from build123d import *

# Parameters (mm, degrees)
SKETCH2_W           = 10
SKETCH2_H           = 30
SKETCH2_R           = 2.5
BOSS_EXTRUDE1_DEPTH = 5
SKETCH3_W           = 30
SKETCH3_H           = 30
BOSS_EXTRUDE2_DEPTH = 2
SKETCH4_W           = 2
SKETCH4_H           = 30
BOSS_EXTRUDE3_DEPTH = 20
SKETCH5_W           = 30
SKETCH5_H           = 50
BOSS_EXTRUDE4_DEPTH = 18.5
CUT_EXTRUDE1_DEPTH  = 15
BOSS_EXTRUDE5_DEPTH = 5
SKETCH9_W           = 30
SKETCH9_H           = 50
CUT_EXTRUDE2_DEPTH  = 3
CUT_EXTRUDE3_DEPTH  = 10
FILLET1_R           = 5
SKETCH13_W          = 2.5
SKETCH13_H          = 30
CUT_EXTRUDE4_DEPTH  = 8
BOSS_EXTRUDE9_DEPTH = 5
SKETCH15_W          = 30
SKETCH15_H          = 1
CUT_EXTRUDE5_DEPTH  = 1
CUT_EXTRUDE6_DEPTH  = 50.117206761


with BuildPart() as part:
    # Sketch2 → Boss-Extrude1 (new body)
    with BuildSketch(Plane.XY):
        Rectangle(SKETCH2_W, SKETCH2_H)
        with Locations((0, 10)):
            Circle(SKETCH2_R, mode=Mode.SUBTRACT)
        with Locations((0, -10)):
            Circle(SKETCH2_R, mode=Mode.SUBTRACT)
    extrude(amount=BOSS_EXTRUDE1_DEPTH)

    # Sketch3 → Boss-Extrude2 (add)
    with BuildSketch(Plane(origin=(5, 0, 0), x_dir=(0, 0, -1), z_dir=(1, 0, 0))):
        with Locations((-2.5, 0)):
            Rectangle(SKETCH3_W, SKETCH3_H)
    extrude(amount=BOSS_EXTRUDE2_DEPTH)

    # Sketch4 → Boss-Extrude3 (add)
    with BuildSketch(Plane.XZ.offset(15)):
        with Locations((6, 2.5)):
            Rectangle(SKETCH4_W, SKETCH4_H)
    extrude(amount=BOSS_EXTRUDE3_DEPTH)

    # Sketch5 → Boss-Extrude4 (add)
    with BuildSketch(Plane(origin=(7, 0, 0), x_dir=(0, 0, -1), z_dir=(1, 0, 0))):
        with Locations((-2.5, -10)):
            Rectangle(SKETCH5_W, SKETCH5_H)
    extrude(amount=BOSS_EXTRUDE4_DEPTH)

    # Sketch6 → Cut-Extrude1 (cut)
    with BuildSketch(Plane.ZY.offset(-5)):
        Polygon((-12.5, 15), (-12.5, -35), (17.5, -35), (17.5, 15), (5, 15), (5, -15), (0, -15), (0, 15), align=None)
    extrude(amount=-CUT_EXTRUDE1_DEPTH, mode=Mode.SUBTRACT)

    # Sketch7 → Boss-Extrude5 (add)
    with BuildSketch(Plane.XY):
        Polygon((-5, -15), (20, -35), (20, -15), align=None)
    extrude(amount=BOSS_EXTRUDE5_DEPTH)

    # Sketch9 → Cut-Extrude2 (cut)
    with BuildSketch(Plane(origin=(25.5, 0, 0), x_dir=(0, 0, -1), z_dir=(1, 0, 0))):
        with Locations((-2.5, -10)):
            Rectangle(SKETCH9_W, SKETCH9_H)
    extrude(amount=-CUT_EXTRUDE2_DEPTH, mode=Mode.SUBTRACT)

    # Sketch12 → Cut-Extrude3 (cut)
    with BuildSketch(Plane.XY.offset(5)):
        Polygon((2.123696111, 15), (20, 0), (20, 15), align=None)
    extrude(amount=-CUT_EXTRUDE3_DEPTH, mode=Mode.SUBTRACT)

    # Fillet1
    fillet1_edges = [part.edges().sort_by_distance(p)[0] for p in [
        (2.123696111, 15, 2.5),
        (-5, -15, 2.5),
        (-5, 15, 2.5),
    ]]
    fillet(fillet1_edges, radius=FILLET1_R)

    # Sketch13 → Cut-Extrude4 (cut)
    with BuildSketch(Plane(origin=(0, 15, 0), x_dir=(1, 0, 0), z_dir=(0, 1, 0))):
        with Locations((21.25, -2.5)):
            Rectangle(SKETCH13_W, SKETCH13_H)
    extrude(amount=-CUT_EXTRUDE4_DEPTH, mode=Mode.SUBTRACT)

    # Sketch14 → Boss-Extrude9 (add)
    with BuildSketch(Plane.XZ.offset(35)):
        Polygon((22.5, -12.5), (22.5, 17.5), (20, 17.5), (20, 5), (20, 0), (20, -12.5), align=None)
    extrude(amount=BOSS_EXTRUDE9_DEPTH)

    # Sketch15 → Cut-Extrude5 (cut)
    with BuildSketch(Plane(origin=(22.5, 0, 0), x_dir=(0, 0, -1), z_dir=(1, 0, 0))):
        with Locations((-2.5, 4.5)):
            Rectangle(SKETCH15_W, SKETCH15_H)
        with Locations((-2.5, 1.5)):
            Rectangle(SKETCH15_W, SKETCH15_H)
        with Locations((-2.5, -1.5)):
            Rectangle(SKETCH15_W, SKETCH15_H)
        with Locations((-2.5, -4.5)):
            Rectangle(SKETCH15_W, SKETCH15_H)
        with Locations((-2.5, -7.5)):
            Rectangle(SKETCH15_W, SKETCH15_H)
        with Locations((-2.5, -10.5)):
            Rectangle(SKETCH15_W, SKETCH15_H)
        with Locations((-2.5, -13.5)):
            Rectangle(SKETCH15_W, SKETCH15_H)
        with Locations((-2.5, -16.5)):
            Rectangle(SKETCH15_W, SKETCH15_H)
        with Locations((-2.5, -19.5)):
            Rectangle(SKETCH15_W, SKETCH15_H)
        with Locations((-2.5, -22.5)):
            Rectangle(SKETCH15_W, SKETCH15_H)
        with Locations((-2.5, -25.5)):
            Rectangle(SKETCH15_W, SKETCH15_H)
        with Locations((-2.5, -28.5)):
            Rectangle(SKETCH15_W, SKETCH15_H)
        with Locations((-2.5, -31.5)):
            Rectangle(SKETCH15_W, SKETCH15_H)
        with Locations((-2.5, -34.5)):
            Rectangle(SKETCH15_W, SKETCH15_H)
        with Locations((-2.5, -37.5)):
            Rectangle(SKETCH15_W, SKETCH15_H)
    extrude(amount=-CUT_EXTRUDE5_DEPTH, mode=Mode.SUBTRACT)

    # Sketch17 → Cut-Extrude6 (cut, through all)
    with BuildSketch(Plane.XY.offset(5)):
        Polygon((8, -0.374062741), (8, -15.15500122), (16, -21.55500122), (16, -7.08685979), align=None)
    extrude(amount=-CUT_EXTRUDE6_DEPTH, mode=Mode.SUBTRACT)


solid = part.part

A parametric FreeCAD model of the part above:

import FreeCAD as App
import Part
import Sketcher
from FreeCAD import Vector
Q = App.Units.Quantity


def edges_at(feature, points):
    """Names of the edges that pass closest to the given points."""
    edges = feature.Shape.Edges
    near = lambda p: min(range(len(edges)), key=lambda i: edges[i].distToShape(Part.Vertex(*p))[0])
    return sorted({f"Edge{near(p) + 1}" for p in points})

doc = App.newDocument("Part")
body = doc.addObject("PartDesign::Body", "Body")

# Sketch on XY plane
sketch1 = body.newObject("Sketcher::SketchObject", "Sketch")
sketch1.AttachmentSupport = (doc.getObject("XY_Plane"), [""])
sketch1.MapMode = "FlatFace"
sketch1.addGeometry(Part.LineSegment(Vector(-5, 15, 0), Vector(-5, -15, 0)), False)
sketch1.addGeometry(Part.LineSegment(Vector(-5, -15, 0), Vector(5, -15, 0)), False)
sketch1.addGeometry(Part.LineSegment(Vector(5, -15, 0), Vector(5, 15, 0)), False)
sketch1.addGeometry(Part.LineSegment(Vector(5, 15, 0), Vector(-5, 15, 0)), False)
sketch1.addGeometry(Part.Circle(Vector(0, -10, 0), Vector(0, 0, 1), 2.5), False)
sketch1.addGeometry(Part.Circle(Vector(0, 10, 0), Vector(0, 0, 1), 2.5), False)
sketch1.addConstraint(Sketcher.Constraint("Coincident", 0, 2, 1, 1))
sketch1.addConstraint(Sketcher.Constraint("Coincident", 1, 2, 2, 1))
sketch1.addConstraint(Sketcher.Constraint("Coincident", 2, 2, 3, 1))
sketch1.addConstraint(Sketcher.Constraint("Coincident", 3, 2, 0, 1))
sketch1.addConstraint(Sketcher.Constraint("Vertical", 0))
sketch1.addConstraint(Sketcher.Constraint("Horizontal", 1))
sketch1.addConstraint(Sketcher.Constraint("Vertical", 2))
sketch1.addConstraint(Sketcher.Constraint("Horizontal", 3))
sketch1.addConstraint(Sketcher.Constraint("Equal", 4, 5))
sketch1.addConstraint(Sketcher.Constraint("Symmetric", 4, 3, 5, 3, -1, 1))
sketch1.addConstraint(Sketcher.Constraint("Symmetric", 0, 2, 2, 2, -1, 1))
sketch1.addConstraint(Sketcher.Constraint("PointOnObject", 4, 3, -2))
sketch1.addConstraint(Sketcher.Constraint("Diameter", 4, Q("5 mm")))
sketch1.addConstraint(Sketcher.Constraint("DistanceX", 1, 1, 1, 2, Q("10 mm")))
sketch1.addConstraint(Sketcher.Constraint("DistanceY", 0, 2, 0, 1, Q("30 mm")))
sketch1.addConstraint(Sketcher.Constraint("DistanceY", 4, 3, -1, 1, Q("10 mm")))
pad1 = body.newObject("PartDesign::Pad", "Pad")
pad1.Profile = sketch1
pad1.Length = 5

# Sketch on YZ plane
sketch2 = body.newObject("Sketcher::SketchObject", "Sketch001")
sketch2.AttachmentSupport = (doc.getObject("YZ_Plane"), [""])
sketch2.MapMode = "FlatFace"
sketch2.AttachmentOffset = App.Placement(Vector(0, 0, 5), App.Rotation())
sketch2.addGeometry(Part.LineSegment(Vector(15, 18, 0), Vector(-15, 18, 0)), False)
sketch2.addGeometry(Part.LineSegment(Vector(-15, 18, 0), Vector(-15, -12, 0)), False)
sketch2.addGeometry(Part.LineSegment(Vector(-15, -12, 0), Vector(15, -12, 0)), False)
sketch2.addGeometry(Part.LineSegment(Vector(15, -12, 0), Vector(15, 18, 0)), False)
sketch2.addConstraint(Sketcher.Constraint("Coincident", 0, 2, 1, 1))
sketch2.addConstraint(Sketcher.Constraint("Coincident", 1, 2, 2, 1))
sketch2.addConstraint(Sketcher.Constraint("Coincident", 2, 2, 3, 1))
sketch2.addConstraint(Sketcher.Constraint("Coincident", 3, 2, 0, 1))
sketch2.addConstraint(Sketcher.Constraint("Horizontal", 0))
sketch2.addConstraint(Sketcher.Constraint("Vertical", 1))
sketch2.addConstraint(Sketcher.Constraint("Horizontal", 2))
sketch2.addConstraint(Sketcher.Constraint("Vertical", 3))
sketch2.addConstraint(Sketcher.Constraint("Equal", 2, 1))
sketch2.addConstraint(Sketcher.Constraint("DistanceX", 0, 2, 0, 1, Q("30 mm")))
sketch2.addConstraint(Sketcher.Constraint("DistanceX", 0, 2, -1, 1, Q("15 mm")))
sketch2.addConstraint(Sketcher.Constraint("DistanceY", -1, 1, 0, 2, Q("17.5 mm")))
pad2 = body.newObject("PartDesign::Pad", "Pad001")
pad2.Profile = sketch2
pad2.Length = 2

# Sketch on XZ plane
sketch3 = body.newObject("Sketcher::SketchObject", "Sketch002")
sketch3.AttachmentSupport = (doc.getObject("XZ_Plane"), [""])
sketch3.MapMode = "FlatFace"
sketch3.AttachmentOffset = App.Placement(Vector(0, 0, 15), App.Rotation())
sketch3.addGeometry(Part.LineSegment(Vector(5, 17.5, 0), Vector(5, -12.5, 0)), False)
sketch3.addGeometry(Part.LineSegment(Vector(5, -12.5, 0), Vector(7, -12.5, 0)), False)
sketch3.addGeometry(Part.LineSegment(Vector(7, -12.5, 0), Vector(7, 17.5, 0)), False)
sketch3.addGeometry(Part.LineSegment(Vector(7, 17.5, 0), Vector(5, 17.5, 0)), False)
sketch3.addConstraint(Sketcher.Constraint("Coincident", 0, 2, 1, 1))
sketch3.addConstraint(Sketcher.Constraint("Coincident", 1, 2, 2, 1))
sketch3.addConstraint(Sketcher.Constraint("Coincident", 2, 2, 3, 1))
sketch3.addConstraint(Sketcher.Constraint("Coincident", 3, 2, 0, 1))
sketch3.addConstraint(Sketcher.Constraint("Vertical", 0))
sketch3.addConstraint(Sketcher.Constraint("Horizontal", 1))
sketch3.addConstraint(Sketcher.Constraint("Vertical", 2))
sketch3.addConstraint(Sketcher.Constraint("Horizontal", 3))
sketch3.addConstraint(Sketcher.Constraint("DistanceX", 1, 1, 1, 2, Q("2 mm")))
sketch3.addConstraint(Sketcher.Constraint("DistanceY", 0, 2, 0, 1, Q("30 mm")))
sketch3.addConstraint(Sketcher.Constraint("DistanceX", -1, 1, 0, 2, Q("5 mm")))
sketch3.addConstraint(Sketcher.Constraint("DistanceY", 0, 2, -1, 1, Q("12.5 mm")))
pad3 = body.newObject("PartDesign::Pad", "Pad002")
pad3.Profile = sketch3
pad3.Length = 20

# Sketch on YZ plane
sketch4 = body.newObject("Sketcher::SketchObject", "Sketch003")
sketch4.AttachmentSupport = (doc.getObject("YZ_Plane"), [""])
sketch4.MapMode = "FlatFace"
sketch4.AttachmentOffset = App.Placement(Vector(0, 0, 7), App.Rotation())
sketch4.addGeometry(Part.LineSegment(Vector(15, 18, 0), Vector(-35, 18, 0)), False)
sketch4.addGeometry(Part.LineSegment(Vector(-35, 18, 0), Vector(-35, -12, 0)), False)
sketch4.addGeometry(Part.LineSegment(Vector(-35, -12, 0), Vector(15, -12, 0)), False)
sketch4.addGeometry(Part.LineSegment(Vector(15, -12, 0), Vector(15, 18, 0)), False)
sketch4.addConstraint(Sketcher.Constraint("Coincident", 0, 2, 1, 1))
sketch4.addConstraint(Sketcher.Constraint("Coincident", 1, 2, 2, 1))
sketch4.addConstraint(Sketcher.Constraint("Coincident", 2, 2, 3, 1))
sketch4.addConstraint(Sketcher.Constraint("Coincident", 3, 2, 0, 1))
sketch4.addConstraint(Sketcher.Constraint("Horizontal", 0))
sketch4.addConstraint(Sketcher.Constraint("Vertical", 1))
sketch4.addConstraint(Sketcher.Constraint("Horizontal", 2))
sketch4.addConstraint(Sketcher.Constraint("Vertical", 3))
sketch4.addConstraint(Sketcher.Constraint("DistanceX", 0, 2, 0, 1, Q("50 mm")))
sketch4.addConstraint(Sketcher.Constraint("DistanceY", 1, 2, 1, 1, Q("30 mm")))
sketch4.addConstraint(Sketcher.Constraint("DistanceX", 0, 2, -1, 1, Q("35 mm")))
sketch4.addConstraint(Sketcher.Constraint("DistanceY", -1, 1, 0, 2, Q("17.5 mm")))
pad4 = body.newObject("PartDesign::Pad", "Pad003")
pad4.Profile = sketch4
pad4.Length = 18.5

# Sketch on YZ plane
sketch5 = body.newObject("Sketcher::SketchObject", "Sketch004")
sketch5.AttachmentSupport = (doc.getObject("YZ_Plane"), [""])
sketch5.MapMode = "FlatFace"
sketch5.AttachmentOffset = App.Placement(Vector(0, 0, 5), App.Rotation())
sketch5.addGeometry(Part.LineSegment(Vector(15, -12, 0), Vector(-35, -12, 0)), False)
sketch5.addGeometry(Part.LineSegment(Vector(-35, -12, 0), Vector(-35, 18, 0)), False)
sketch5.addGeometry(Part.LineSegment(Vector(-35, 18, 0), Vector(15, 18, 0)), False)
sketch5.addGeometry(Part.LineSegment(Vector(15, 18, 0), Vector(15, 5, 0)), False)
sketch5.addGeometry(Part.LineSegment(Vector(15, 5, 0), Vector(-15, 5, 0)), False)
sketch5.addGeometry(Part.LineSegment(Vector(-15, 5, 0), Vector(-15, 0, 0)), False)
sketch5.addGeometry(Part.LineSegment(Vector(-15, 0, 0), Vector(15, 0, 0)), False)
sketch5.addGeometry(Part.LineSegment(Vector(15, 0, 0), Vector(15, -12, 0)), False)
sketch5.addConstraint(Sketcher.Constraint("Coincident", 0, 2, 1, 1))
sketch5.addConstraint(Sketcher.Constraint("Coincident", 1, 2, 2, 1))
sketch5.addConstraint(Sketcher.Constraint("Coincident", 2, 2, 3, 1))
sketch5.addConstraint(Sketcher.Constraint("Coincident", 3, 2, 4, 1))
sketch5.addConstraint(Sketcher.Constraint("Coincident", 4, 2, 5, 1))
sketch5.addConstraint(Sketcher.Constraint("Coincident", 5, 2, 6, 1))
sketch5.addConstraint(Sketcher.Constraint("Coincident", 6, 2, 7, 1))
sketch5.addConstraint(Sketcher.Constraint("Coincident", 7, 2, 0, 1))
sketch5.addConstraint(Sketcher.Constraint("Horizontal", 0))
sketch5.addConstraint(Sketcher.Constraint("Vertical", 1))
sketch5.addConstraint(Sketcher.Constraint("Horizontal", 2))
sketch5.addConstraint(Sketcher.Constraint("Vertical", 3))
sketch5.addConstraint(Sketcher.Constraint("Horizontal", 4))
sketch5.addConstraint(Sketcher.Constraint("Vertical", 5))
sketch5.addConstraint(Sketcher.Constraint("Horizontal", 6))
sketch5.addConstraint(Sketcher.Constraint("Vertical", 7))
sketch5.addConstraint(Sketcher.Constraint("Symmetric", 5, 2, 6, 2, -1, 1))
sketch5.addConstraint(Sketcher.Constraint("Vertical", 3, 2, 6, 2))
sketch5.addConstraint(Sketcher.Constraint("Equal", 6, 1))
sketch5.addConstraint(Sketcher.Constraint("Equal", 3, 7))
sketch5.addConstraint(Sketcher.Constraint("DistanceX", 0, 2, 0, 1, Q("50 mm")))
sketch5.addConstraint(Sketcher.Constraint("DistanceX", 4, 2, 4, 1, Q("30 mm")))
sketch5.addConstraint(Sketcher.Constraint("DistanceY", 5, 2, 5, 1, Q("5 mm")))
pocket1 = body.newObject("PartDesign::Pocket", "Pocket")
pocket1.Profile = sketch5
pocket1.Length = 15
pocket1.Reversed = True

# Sketch on XY plane
sketch6 = body.newObject("Sketcher::SketchObject", "Sketch005")
sketch6.AttachmentSupport = (doc.getObject("XY_Plane"), [""])
sketch6.MapMode = "FlatFace"
sketch6.addGeometry(Part.LineSegment(Vector(-5, -15, 0), Vector(20, -35, 0)), False)
sketch6.addGeometry(Part.LineSegment(Vector(20, -35, 0), Vector(20, -15, 0)), False)
sketch6.addGeometry(Part.LineSegment(Vector(20, -15, 0), Vector(-5, -15, 0)), False)
sketch6.addConstraint(Sketcher.Constraint("Coincident", 0, 2, 1, 1))
sketch6.addConstraint(Sketcher.Constraint("Coincident", 1, 2, 2, 1))
sketch6.addConstraint(Sketcher.Constraint("Coincident", 2, 2, 0, 1))
sketch6.addConstraint(Sketcher.Constraint("Vertical", 1))
sketch6.addConstraint(Sketcher.Constraint("Horizontal", 2))
sketch6.addConstraint(Sketcher.Constraint("DistanceX", 2, 2, 2, 1, Q("25 mm")))
sketch6.addConstraint(Sketcher.Constraint("DistanceY", 1, 1, 1, 2, Q("20 mm")))
sketch6.addConstraint(Sketcher.Constraint("DistanceX", -1, 1, 0, 2, Q("20 mm")))
sketch6.addConstraint(Sketcher.Constraint("DistanceY", 0, 2, -1, 1, Q("35 mm")))
pad5 = body.newObject("PartDesign::Pad", "Pad004")
pad5.Profile = sketch6
pad5.Length = 5

# Sketch on YZ plane
sketch7 = body.newObject("Sketcher::SketchObject", "Sketch006")
sketch7.AttachmentSupport = (doc.getObject("YZ_Plane"), [""])
sketch7.MapMode = "FlatFace"
sketch7.AttachmentOffset = App.Placement(Vector(0, 0, 25.5), App.Rotation())
sketch7.addGeometry(Part.LineSegment(Vector(15, 18, 0), Vector(-35, 18, 0)), False)
sketch7.addGeometry(Part.LineSegment(Vector(-35, 18, 0), Vector(-35, -12, 0)), False)
sketch7.addGeometry(Part.LineSegment(Vector(-35, -12, 0), Vector(15, -12, 0)), False)
sketch7.addGeometry(Part.LineSegment(Vector(15, -12, 0), Vector(15, 18, 0)), False)
sketch7.addConstraint(Sketcher.Constraint("Coincident", 0, 2, 1, 1))
sketch7.addConstraint(Sketcher.Constraint("Coincident", 1, 2, 2, 1))
sketch7.addConstraint(Sketcher.Constraint("Coincident", 2, 2, 3, 1))
sketch7.addConstraint(Sketcher.Constraint("Coincident", 3, 2, 0, 1))
sketch7.addConstraint(Sketcher.Constraint("Horizontal", 0))
sketch7.addConstraint(Sketcher.Constraint("Vertical", 1))
sketch7.addConstraint(Sketcher.Constraint("Horizontal", 2))
sketch7.addConstraint(Sketcher.Constraint("Vertical", 3))
sketch7.addConstraint(Sketcher.Constraint("DistanceX", 0, 2, 0, 1, Q("50 mm")))
sketch7.addConstraint(Sketcher.Constraint("DistanceY", 1, 2, 1, 1, Q("30 mm")))
sketch7.addConstraint(Sketcher.Constraint("DistanceX", 0, 2, -1, 1, Q("35 mm")))
sketch7.addConstraint(Sketcher.Constraint("DistanceY", -1, 1, 0, 2, Q("17.5 mm")))
pocket2 = body.newObject("PartDesign::Pocket", "Pocket001")
pocket2.Profile = sketch7
pocket2.Length = 3

# Sketch on XY plane
sketch8 = body.newObject("Sketcher::SketchObject", "Sketch007")
sketch8.AttachmentSupport = (doc.getObject("XY_Plane"), [""])
sketch8.MapMode = "FlatFace"
sketch8.AttachmentOffset = App.Placement(Vector(0, 0, 5), App.Rotation())
sketch8.addGeometry(Part.LineSegment(Vector(2, 15, 0), Vector(20, 0, 0)), False)
sketch8.addGeometry(Part.LineSegment(Vector(20, 0, 0), Vector(20, 15, 0)), False)
sketch8.addGeometry(Part.LineSegment(Vector(20, 15, 0), Vector(2, 15, 0)), False)
sketch8.addConstraint(Sketcher.Constraint("Coincident", 0, 2, 1, 1))
sketch8.addConstraint(Sketcher.Constraint("Coincident", 1, 2, 2, 1))
sketch8.addConstraint(Sketcher.Constraint("Coincident", 2, 2, 0, 1))
sketch8.addConstraint(Sketcher.Constraint("Vertical", 1))
sketch8.addConstraint(Sketcher.Constraint("Horizontal", 2))
sketch8.addConstraint(Sketcher.Constraint("PointOnObject", 0, 2, -1))
sketch8.addConstraint(Sketcher.Constraint("DistanceY", 1, 1, 1, 2, Q("15 mm")))
sketch8.addConstraint(Sketcher.Constraint("Angle", 0, Q("-40 deg")))
sketch8.addConstraint(Sketcher.Constraint("DistanceX", -1, 1, 0, 2, Q("20 mm")))
pocket3 = body.newObject("PartDesign::Pocket", "Pocket002")
pocket3.Profile = sketch8
pocket3.Length = 10
doc.recompute()

fillet = body.newObject("PartDesign::Fillet", "Fillet")
fillet.Base = (pocket3, edges_at(pocket3, [(2.124, 15, 2.5), (-5, -15, 2.5), (-5, 15, 2.5)]))
fillet.Radius = 5

# Sketch on XZ plane
sketch9 = body.newObject("Sketcher::SketchObject", "Sketch008")
sketch9.AttachmentSupport = (doc.getObject("XZ_Plane"), [""])
sketch9.MapMode = "FlatFace"
sketch9.AttachmentOffset = App.Placement(Vector(0, 0, -15), App.Rotation())
sketch9.addGeometry(Part.LineSegment(Vector(20, -12.5, 0), Vector(20, 17.5, 0)), False)
sketch9.addGeometry(Part.LineSegment(Vector(20, 17.5, 0), Vector(22.5, 17.5, 0)), False)
sketch9.addGeometry(Part.LineSegment(Vector(22.5, 17.5, 0), Vector(22.5, -12.5, 0)), False)
sketch9.addGeometry(Part.LineSegment(Vector(22.5, -12.5, 0), Vector(20, -12.5, 0)), False)
sketch9.addConstraint(Sketcher.Constraint("Coincident", 0, 2, 1, 1))
sketch9.addConstraint(Sketcher.Constraint("Coincident", 1, 2, 2, 1))
sketch9.addConstraint(Sketcher.Constraint("Coincident", 2, 2, 3, 1))
sketch9.addConstraint(Sketcher.Constraint("Coincident", 3, 2, 0, 1))
sketch9.addConstraint(Sketcher.Constraint("Vertical", 0))
sketch9.addConstraint(Sketcher.Constraint("Horizontal", 1))
sketch9.addConstraint(Sketcher.Constraint("Vertical", 2))
sketch9.addConstraint(Sketcher.Constraint("Horizontal", 3))
sketch9.addConstraint(Sketcher.Constraint("DistanceY", 0, 1, 0, 2, Q("30 mm")))
sketch9.addConstraint(Sketcher.Constraint("DistanceX", 1, 1, 1, 2, Q("2.5 mm")))
sketch9.addConstraint(Sketcher.Constraint("DistanceX", -1, 1, 0, 2, Q("20 mm")))
sketch9.addConstraint(Sketcher.Constraint("DistanceY", -1, 1, 0, 2, Q("17.5 mm")))
pocket4 = body.newObject("PartDesign::Pocket", "Pocket003")
pocket4.Profile = sketch9
pocket4.Length = 8
pocket4.Reversed = True

# Sketch on XZ plane
sketch10 = body.newObject("Sketcher::SketchObject", "Sketch009")
sketch10.AttachmentSupport = (doc.getObject("XZ_Plane"), [""])
sketch10.MapMode = "FlatFace"
sketch10.AttachmentOffset = App.Placement(Vector(0, 0, 35), App.Rotation())
sketch10.addGeometry(Part.LineSegment(Vector(22.5, -12.5, 0), Vector(22.5, 17.5, 0)), False)
sketch10.addGeometry(Part.LineSegment(Vector(22.5, 17.5, 0), Vector(20, 17.5, 0)), False)
sketch10.addGeometry(Part.LineSegment(Vector(20, 17.5, 0), Vector(20, -12.5, 0)), False)
sketch10.addGeometry(Part.LineSegment(Vector(20, -12.5, 0), Vector(22.5, -12.5, 0)), False)
sketch10.addConstraint(Sketcher.Constraint("Coincident", 0, 2, 1, 1))
sketch10.addConstraint(Sketcher.Constraint("Coincident", 1, 2, 2, 1))
sketch10.addConstraint(Sketcher.Constraint("Coincident", 2, 2, 3, 1))
sketch10.addConstraint(Sketcher.Constraint("Coincident", 3, 2, 0, 1))
sketch10.addConstraint(Sketcher.Constraint("Vertical", 0))
sketch10.addConstraint(Sketcher.Constraint("Horizontal", 1))
sketch10.addConstraint(Sketcher.Constraint("Vertical", 2))
sketch10.addConstraint(Sketcher.Constraint("Horizontal", 3))
sketch10.addConstraint(Sketcher.Constraint("DistanceY", 0, 1, 0, 2, Q("30 mm")))
sketch10.addConstraint(Sketcher.Constraint("DistanceX", 1, 2, 1, 1, Q("2.5 mm")))
sketch10.addConstraint(Sketcher.Constraint("DistanceX", -1, 1, 1, 2, Q("20 mm")))
sketch10.addConstraint(Sketcher.Constraint("DistanceY", -1, 1, 0, 2, Q("17.5 mm")))
pad6 = body.newObject("PartDesign::Pad", "Pad005")
pad6.Profile = sketch10
pad6.Length = 5

# Sketch on YZ plane
sketch11 = body.newObject("Sketcher::SketchObject", "Sketch010")
sketch11.AttachmentSupport = (doc.getObject("YZ_Plane"), [""])
sketch11.MapMode = "FlatFace"
sketch11.AttachmentOffset = App.Placement(Vector(0, 0, 22.5), App.Rotation())
sketch11.addGeometry(Part.LineSegment(Vector(5, 17.5, 0), Vector(4, 17.5, 0)), False)
sketch11.addGeometry(Part.LineSegment(Vector(4, 17.5, 0), Vector(4, -12.5, 0)), False)
sketch11.addGeometry(Part.LineSegment(Vector(4, -12.5, 0), Vector(5, -12.5, 0)), False)
sketch11.addGeometry(Part.LineSegment(Vector(5, -12.5, 0), Vector(5, 17.5, 0)), False)
sketch11.addGeometry(Part.LineSegment(Vector(2, 17.5, 0), Vector(1, 17.5, 0)), False)
sketch11.addGeometry(Part.LineSegment(Vector(1, 17.5, 0), Vector(1, -12.5, 0)), False)
sketch11.addGeometry(Part.LineSegment(Vector(1, -12.5, 0), Vector(2, -12.5, 0)), False)
sketch11.addGeometry(Part.LineSegment(Vector(2, -12.5, 0), Vector(2, 17.5, 0)), False)
sketch11.addGeometry(Part.LineSegment(Vector(-1, 17.5, 0), Vector(-2, 17.5, 0)), False)
sketch11.addGeometry(Part.LineSegment(Vector(-2, 17.5, 0), Vector(-2, -12.5, 0)), False)
sketch11.addGeometry(Part.LineSegment(Vector(-2, -12.5, 0), Vector(-1, -12.5, 0)), False)
sketch11.addGeometry(Part.LineSegment(Vector(-1, -12.5, 0), Vector(-1, 17.5, 0)), False)
sketch11.addGeometry(Part.LineSegment(Vector(-4, 17.5, 0), Vector(-5, 17.5, 0)), False)
sketch11.addGeometry(Part.LineSegment(Vector(-5, 17.5, 0), Vector(-5, -12.5, 0)), False)
sketch11.addGeometry(Part.LineSegment(Vector(-5, -12.5, 0), Vector(-4, -12.5, 0)), False)
sketch11.addGeometry(Part.LineSegment(Vector(-4, -12.5, 0), Vector(-4, 17.5, 0)), False)
sketch11.addGeometry(Part.LineSegment(Vector(-7, 17.5, 0), Vector(-8, 17.5, 0)), False)
sketch11.addGeometry(Part.LineSegment(Vector(-8, 17.5, 0), Vector(-8, -12.5, 0)), False)
sketch11.addGeometry(Part.LineSegment(Vector(-8, -12.5, 0), Vector(-7, -12.5, 0)), False)
sketch11.addGeometry(Part.LineSegment(Vector(-7, -12.5, 0), Vector(-7, 17.5, 0)), False)
sketch11.addGeometry(Part.LineSegment(Vector(-10, 17.5, 0), Vector(-11, 17.5, 0)), False)
sketch11.addGeometry(Part.LineSegment(Vector(-11, 17.5, 0), Vector(-11, -12.5, 0)), False)
sketch11.addGeometry(Part.LineSegment(Vector(-11, -12.5, 0), Vector(-10, -12.5, 0)), False)
sketch11.addGeometry(Part.LineSegment(Vector(-10, -12.5, 0), Vector(-10, 17.5, 0)), False)
sketch11.addGeometry(Part.LineSegment(Vector(-13, 17.5, 0), Vector(-14, 17.5, 0)), False)
sketch11.addGeometry(Part.LineSegment(Vector(-14, 17.5, 0), Vector(-14, -12.5, 0)), False)
sketch11.addGeometry(Part.LineSegment(Vector(-14, -12.5, 0), Vector(-13, -12.5, 0)), False)
sketch11.addGeometry(Part.LineSegment(Vector(-13, -12.5, 0), Vector(-13, 17.5, 0)), False)
sketch11.addGeometry(Part.LineSegment(Vector(-16, 17.5, 0), Vector(-17, 17.5, 0)), False)
sketch11.addGeometry(Part.LineSegment(Vector(-17, 17.5, 0), Vector(-17, -12.5, 0)), False)
sketch11.addGeometry(Part.LineSegment(Vector(-17, -12.5, 0), Vector(-16, -12.5, 0)), False)
sketch11.addGeometry(Part.LineSegment(Vector(-16, -12.5, 0), Vector(-16, 17.5, 0)), False)
sketch11.addGeometry(Part.LineSegment(Vector(-19, 17.5, 0), Vector(-20, 17.5, 0)), False)
sketch11.addGeometry(Part.LineSegment(Vector(-20, 17.5, 0), Vector(-20, -12.5, 0)), False)
sketch11.addGeometry(Part.LineSegment(Vector(-20, -12.5, 0), Vector(-19, -12.5, 0)), False)
sketch11.addGeometry(Part.LineSegment(Vector(-19, -12.5, 0), Vector(-19, 17.5, 0)), False)
sketch11.addGeometry(Part.LineSegment(Vector(-22, 17.5, 0), Vector(-23, 17.5, 0)), False)
sketch11.addGeometry(Part.LineSegment(Vector(-23, 17.5, 0), Vector(-23, -12.5, 0)), False)
sketch11.addGeometry(Part.LineSegment(Vector(-23, -12.5, 0), Vector(-22, -12.5, 0)), False)
sketch11.addGeometry(Part.LineSegment(Vector(-22, -12.5, 0), Vector(-22, 17.5, 0)), False)
sketch11.addGeometry(Part.LineSegment(Vector(-25, 17.5, 0), Vector(-26, 17.5, 0)), False)
sketch11.addGeometry(Part.LineSegment(Vector(-26, 17.5, 0), Vector(-26, -12.5, 0)), False)
sketch11.addGeometry(Part.LineSegment(Vector(-26, -12.5, 0), Vector(-25, -12.5, 0)), False)
sketch11.addGeometry(Part.LineSegment(Vector(-25, -12.5, 0), Vector(-25, 17.5, 0)), False)
sketch11.addGeometry(Part.LineSegment(Vector(-28, 17.5, 0), Vector(-29, 17.5, 0)), False)
sketch11.addGeometry(Part.LineSegment(Vector(-29, 17.5, 0), Vector(-29, -12.5, 0)), False)
sketch11.addGeometry(Part.LineSegment(Vector(-29, -12.5, 0), Vector(-28, -12.5, 0)), False)
sketch11.addGeometry(Part.LineSegment(Vector(-28, -12.5, 0), Vector(-28, 17.5, 0)), False)
sketch11.addGeometry(Part.LineSegment(Vector(-31, 17.5, 0), Vector(-32, 17.5, 0)), False)
sketch11.addGeometry(Part.LineSegment(Vector(-32, 17.5, 0), Vector(-32, -12.5, 0)), False)
sketch11.addGeometry(Part.LineSegment(Vector(-32, -12.5, 0), Vector(-31, -12.5, 0)), False)
sketch11.addGeometry(Part.LineSegment(Vector(-31, -12.5, 0), Vector(-31, 17.5, 0)), False)
sketch11.addGeometry(Part.LineSegment(Vector(-34, 17.5, 0), Vector(-35, 17.5, 0)), False)
sketch11.addGeometry(Part.LineSegment(Vector(-35, 17.5, 0), Vector(-35, -12.5, 0)), False)
sketch11.addGeometry(Part.LineSegment(Vector(-35, -12.5, 0), Vector(-34, -12.5, 0)), False)
sketch11.addGeometry(Part.LineSegment(Vector(-34, -12.5, 0), Vector(-34, 17.5, 0)), False)
sketch11.addGeometry(Part.LineSegment(Vector(-37, 17.5, 0), Vector(-38, 17.5, 0)), False)
sketch11.addGeometry(Part.LineSegment(Vector(-38, 17.5, 0), Vector(-38, -12.5, 0)), False)
sketch11.addGeometry(Part.LineSegment(Vector(-38, -12.5, 0), Vector(-37, -12.5, 0)), False)
sketch11.addGeometry(Part.LineSegment(Vector(-37, -12.5, 0), Vector(-37, 17.5, 0)), False)
sketch11.addConstraint(Sketcher.Constraint("Coincident", 0, 2, 1, 1))
sketch11.addConstraint(Sketcher.Constraint("Coincident", 1, 2, 2, 1))
sketch11.addConstraint(Sketcher.Constraint("Coincident", 2, 2, 3, 1))
sketch11.addConstraint(Sketcher.Constraint("Coincident", 3, 2, 0, 1))
sketch11.addConstraint(Sketcher.Constraint("Coincident", 4, 2, 5, 1))
sketch11.addConstraint(Sketcher.Constraint("Coincident", 5, 2, 6, 1))
sketch11.addConstraint(Sketcher.Constraint("Coincident", 6, 2, 7, 1))
sketch11.addConstraint(Sketcher.Constraint("Coincident", 7, 2, 4, 1))
sketch11.addConstraint(Sketcher.Constraint("Coincident", 8, 2, 9, 1))
sketch11.addConstraint(Sketcher.Constraint("Coincident", 9, 2, 10, 1))
sketch11.addConstraint(Sketcher.Constraint("Coincident", 10, 2, 11, 1))
sketch11.addConstraint(Sketcher.Constraint("Coincident", 11, 2, 8, 1))
sketch11.addConstraint(Sketcher.Constraint("Coincident", 12, 2, 13, 1))
sketch11.addConstraint(Sketcher.Constraint("Coincident", 13, 2, 14, 1))
sketch11.addConstraint(Sketcher.Constraint("Coincident", 14, 2, 15, 1))
sketch11.addConstraint(Sketcher.Constraint("Coincident", 15, 2, 12, 1))
sketch11.addConstraint(Sketcher.Constraint("Coincident", 16, 2, 17, 1))
sketch11.addConstraint(Sketcher.Constraint("Coincident", 17, 2, 18, 1))
sketch11.addConstraint(Sketcher.Constraint("Coincident", 18, 2, 19, 1))
sketch11.addConstraint(Sketcher.Constraint("Coincident", 19, 2, 16, 1))
sketch11.addConstraint(Sketcher.Constraint("Coincident", 20, 2, 21, 1))
sketch11.addConstraint(Sketcher.Constraint("Coincident", 21, 2, 22, 1))
sketch11.addConstraint(Sketcher.Constraint("Coincident", 22, 2, 23, 1))
sketch11.addConstraint(Sketcher.Constraint("Coincident", 23, 2, 20, 1))
sketch11.addConstraint(Sketcher.Constraint("Coincident", 24, 2, 25, 1))
sketch11.addConstraint(Sketcher.Constraint("Coincident", 25, 2, 26, 1))
sketch11.addConstraint(Sketcher.Constraint("Coincident", 26, 2, 27, 1))
sketch11.addConstraint(Sketcher.Constraint("Coincident", 27, 2, 24, 1))
sketch11.addConstraint(Sketcher.Constraint("Coincident", 28, 2, 29, 1))
sketch11.addConstraint(Sketcher.Constraint("Coincident", 29, 2, 30, 1))
sketch11.addConstraint(Sketcher.Constraint("Coincident", 30, 2, 31, 1))
sketch11.addConstraint(Sketcher.Constraint("Coincident", 31, 2, 28, 1))
sketch11.addConstraint(Sketcher.Constraint("Coincident", 32, 2, 33, 1))
sketch11.addConstraint(Sketcher.Constraint("Coincident", 33, 2, 34, 1))
sketch11.addConstraint(Sketcher.Constraint("Coincident", 34, 2, 35, 1))
sketch11.addConstraint(Sketcher.Constraint("Coincident", 35, 2, 32, 1))
sketch11.addConstraint(Sketcher.Constraint("Coincident", 36, 2, 37, 1))
sketch11.addConstraint(Sketcher.Constraint("Coincident", 37, 2, 38, 1))
sketch11.addConstraint(Sketcher.Constraint("Coincident", 38, 2, 39, 1))
sketch11.addConstraint(Sketcher.Constraint("Coincident", 39, 2, 36, 1))
sketch11.addConstraint(Sketcher.Constraint("Coincident", 40, 2, 41, 1))
sketch11.addConstraint(Sketcher.Constraint("Coincident", 41, 2, 42, 1))
sketch11.addConstraint(Sketcher.Constraint("Coincident", 42, 2, 43, 1))
sketch11.addConstraint(Sketcher.Constraint("Coincident", 43, 2, 40, 1))
sketch11.addConstraint(Sketcher.Constraint("Coincident", 44, 2, 45, 1))
sketch11.addConstraint(Sketcher.Constraint("Coincident", 45, 2, 46, 1))
sketch11.addConstraint(Sketcher.Constraint("Coincident", 46, 2, 47, 1))
sketch11.addConstraint(Sketcher.Constraint("Coincident", 47, 2, 44, 1))
sketch11.addConstraint(Sketcher.Constraint("Coincident", 48, 2, 49, 1))
sketch11.addConstraint(Sketcher.Constraint("Coincident", 49, 2, 50, 1))
sketch11.addConstraint(Sketcher.Constraint("Coincident", 50, 2, 51, 1))
sketch11.addConstraint(Sketcher.Constraint("Coincident", 51, 2, 48, 1))
sketch11.addConstraint(Sketcher.Constraint("Coincident", 52, 2, 53, 1))
sketch11.addConstraint(Sketcher.Constraint("Coincident", 53, 2, 54, 1))
sketch11.addConstraint(Sketcher.Constraint("Coincident", 54, 2, 55, 1))
sketch11.addConstraint(Sketcher.Constraint("Coincident", 55, 2, 52, 1))
sketch11.addConstraint(Sketcher.Constraint("Coincident", 56, 2, 57, 1))
sketch11.addConstraint(Sketcher.Constraint("Coincident", 57, 2, 58, 1))
sketch11.addConstraint(Sketcher.Constraint("Coincident", 58, 2, 59, 1))
sketch11.addConstraint(Sketcher.Constraint("Coincident", 59, 2, 56, 1))
sketch11.addConstraint(Sketcher.Constraint("Horizontal", 0))
sketch11.addConstraint(Sketcher.Constraint("Vertical", 1))
sketch11.addConstraint(Sketcher.Constraint("Horizontal", 2))
sketch11.addConstraint(Sketcher.Constraint("Vertical", 3))
sketch11.addConstraint(Sketcher.Constraint("Horizontal", 4))
sketch11.addConstraint(Sketcher.Constraint("Vertical", 5))
sketch11.addConstraint(Sketcher.Constraint("Horizontal", 6))
sketch11.addConstraint(Sketcher.Constraint("Vertical", 7))
sketch11.addConstraint(Sketcher.Constraint("Horizontal", 8))
sketch11.addConstraint(Sketcher.Constraint("Vertical", 9))
sketch11.addConstraint(Sketcher.Constraint("Horizontal", 10))
sketch11.addConstraint(Sketcher.Constraint("Vertical", 11))
sketch11.addConstraint(Sketcher.Constraint("Horizontal", 12))
sketch11.addConstraint(Sketcher.Constraint("Vertical", 13))
sketch11.addConstraint(Sketcher.Constraint("Horizontal", 14))
sketch11.addConstraint(Sketcher.Constraint("Vertical", 15))
sketch11.addConstraint(Sketcher.Constraint("Horizontal", 16))
sketch11.addConstraint(Sketcher.Constraint("Vertical", 17))
sketch11.addConstraint(Sketcher.Constraint("Horizontal", 18))
sketch11.addConstraint(Sketcher.Constraint("Vertical", 19))
sketch11.addConstraint(Sketcher.Constraint("Horizontal", 20))
sketch11.addConstraint(Sketcher.Constraint("Vertical", 21))
sketch11.addConstraint(Sketcher.Constraint("Horizontal", 22))
sketch11.addConstraint(Sketcher.Constraint("Vertical", 23))
sketch11.addConstraint(Sketcher.Constraint("Horizontal", 24))
sketch11.addConstraint(Sketcher.Constraint("Vertical", 25))
sketch11.addConstraint(Sketcher.Constraint("Horizontal", 26))
sketch11.addConstraint(Sketcher.Constraint("Vertical", 27))
sketch11.addConstraint(Sketcher.Constraint("Horizontal", 28))
sketch11.addConstraint(Sketcher.Constraint("Vertical", 29))
sketch11.addConstraint(Sketcher.Constraint("Horizontal", 30))
sketch11.addConstraint(Sketcher.Constraint("Vertical", 31))
sketch11.addConstraint(Sketcher.Constraint("Horizontal", 32))
sketch11.addConstraint(Sketcher.Constraint("Vertical", 33))
sketch11.addConstraint(Sketcher.Constraint("Horizontal", 34))
sketch11.addConstraint(Sketcher.Constraint("Vertical", 35))
sketch11.addConstraint(Sketcher.Constraint("Horizontal", 36))
sketch11.addConstraint(Sketcher.Constraint("Vertical", 37))
sketch11.addConstraint(Sketcher.Constraint("Horizontal", 38))
sketch11.addConstraint(Sketcher.Constraint("Vertical", 39))
sketch11.addConstraint(Sketcher.Constraint("Horizontal", 40))
sketch11.addConstraint(Sketcher.Constraint("Vertical", 41))
sketch11.addConstraint(Sketcher.Constraint("Horizontal", 42))
sketch11.addConstraint(Sketcher.Constraint("Vertical", 43))
sketch11.addConstraint(Sketcher.Constraint("Horizontal", 44))
sketch11.addConstraint(Sketcher.Constraint("Vertical", 45))
sketch11.addConstraint(Sketcher.Constraint("Horizontal", 46))
sketch11.addConstraint(Sketcher.Constraint("Vertical", 47))
sketch11.addConstraint(Sketcher.Constraint("Horizontal", 48))
sketch11.addConstraint(Sketcher.Constraint("Vertical", 49))
sketch11.addConstraint(Sketcher.Constraint("Horizontal", 50))
sketch11.addConstraint(Sketcher.Constraint("Vertical", 51))
sketch11.addConstraint(Sketcher.Constraint("Horizontal", 52))
sketch11.addConstraint(Sketcher.Constraint("Vertical", 53))
sketch11.addConstraint(Sketcher.Constraint("Horizontal", 54))
sketch11.addConstraint(Sketcher.Constraint("Vertical", 55))
sketch11.addConstraint(Sketcher.Constraint("Horizontal", 56))
sketch11.addConstraint(Sketcher.Constraint("Vertical", 57))
sketch11.addConstraint(Sketcher.Constraint("Horizontal", 58))
sketch11.addConstraint(Sketcher.Constraint("Vertical", 59))
sketch11.addConstraint(Sketcher.Constraint("Symmetric", 7, 2, 8, 2, -2))
sketch11.addConstraint(Sketcher.Constraint("Symmetric", 5, 2, 10, 2, -2))
sketch11.addConstraint(Sketcher.Constraint("Symmetric", 3, 2, 12, 2, -2))
sketch11.addConstraint(Sketcher.Constraint("Symmetric", 1, 2, 14, 2, -2))
sketch11.addConstraint(Sketcher.Constraint("Horizontal", 3, 2, 4, 2))
sketch11.addConstraint(Sketcher.Constraint("Horizontal", 2, 2, 5, 2))
sketch11.addConstraint(Sketcher.Constraint("Horizontal", 15, 2, 16, 2))
sketch11.addConstraint(Sketcher.Constraint("Horizontal", 14, 2, 17, 2))
sketch11.addConstraint(Sketcher.Constraint("Horizontal", 19, 2, 20, 2))
sketch11.addConstraint(Sketcher.Constraint("Horizontal", 18, 2, 21, 2))
sketch11.addConstraint(Sketcher.Constraint("Horizontal", 23, 2, 24, 2))
sketch11.addConstraint(Sketcher.Constraint("Horizontal", 22, 2, 25, 2))
sketch11.addConstraint(Sketcher.Constraint("Horizontal", 27, 2, 28, 2))
sketch11.addConstraint(Sketcher.Constraint("Horizontal", 26, 2, 29, 2))
sketch11.addConstraint(Sketcher.Constraint("Horizontal", 31, 2, 32, 2))
sketch11.addConstraint(Sketcher.Constraint("Horizontal", 30, 2, 33, 2))
sketch11.addConstraint(Sketcher.Constraint("Horizontal", 35, 2, 36, 2))
sketch11.addConstraint(Sketcher.Constraint("Horizontal", 34, 2, 37, 2))
sketch11.addConstraint(Sketcher.Constraint("Horizontal", 39, 2, 40, 2))
sketch11.addConstraint(Sketcher.Constraint("Horizontal", 38, 2, 41, 2))
sketch11.addConstraint(Sketcher.Constraint("Horizontal", 43, 2, 44, 2))
sketch11.addConstraint(Sketcher.Constraint("Horizontal", 42, 2, 45, 2))
sketch11.addConstraint(Sketcher.Constraint("Horizontal", 47, 2, 48, 2))
sketch11.addConstraint(Sketcher.Constraint("Horizontal", 46, 2, 49, 2))
sketch11.addConstraint(Sketcher.Constraint("Horizontal", 51, 2, 52, 2))
sketch11.addConstraint(Sketcher.Constraint("Horizontal", 50, 2, 53, 2))
sketch11.addConstraint(Sketcher.Constraint("Horizontal", 55, 2, 56, 2))
sketch11.addConstraint(Sketcher.Constraint("Horizontal", 54, 2, 57, 2))
sketch11.addConstraint(Sketcher.Constraint("Equal", 2, 4))
sketch11.addConstraint(Sketcher.Constraint("Equal", 14, 16))
sketch11.addConstraint(Sketcher.Constraint("Equal", 18, 20))
sketch11.addConstraint(Sketcher.Constraint("Equal", 22, 24))
sketch11.addConstraint(Sketcher.Constraint("Equal", 26, 28))
sketch11.addConstraint(Sketcher.Constraint("Equal", 30, 32))
sketch11.addConstraint(Sketcher.Constraint("Equal", 34, 36))
sketch11.addConstraint(Sketcher.Constraint("Equal", 38, 40))
sketch11.addConstraint(Sketcher.Constraint("Equal", 42, 44))
sketch11.addConstraint(Sketcher.Constraint("Equal", 46, 48))
sketch11.addConstraint(Sketcher.Constraint("Equal", 50, 52))
sketch11.addConstraint(Sketcher.Constraint("Equal", 54, 56))
sketch11.addConstraint(Sketcher.Constraint("DistanceX", 0, 2, 0, 1, Q("1 mm")))
sketch11.addConstraint(Sketcher.Constraint("DistanceY", 1, 2, 1, 1, Q("30 mm")))
sketch11.addConstraint(Sketcher.Constraint("DistanceX", -1, 1, 0, 2, Q("4 mm")))
sketch11.addConstraint(Sketcher.Constraint("DistanceX", -1, 1, 4, 2, Q("1 mm")))
sketch11.addConstraint(Sketcher.Constraint("DistanceX", 16, 2, -1, 1, Q("8 mm")))
sketch11.addConstraint(Sketcher.Constraint("DistanceX", 20, 2, -1, 1, Q("11 mm")))
sketch11.addConstraint(Sketcher.Constraint("DistanceX", 24, 2, -1, 1, Q("14 mm")))
sketch11.addConstraint(Sketcher.Constraint("DistanceX", 28, 2, -1, 1, Q("17 mm")))
sketch11.addConstraint(Sketcher.Constraint("DistanceX", 32, 2, -1, 1, Q("20 mm")))
sketch11.addConstraint(Sketcher.Constraint("DistanceX", 36, 2, -1, 1, Q("23 mm")))
sketch11.addConstraint(Sketcher.Constraint("DistanceX", 40, 2, -1, 1, Q("26 mm")))
sketch11.addConstraint(Sketcher.Constraint("DistanceX", 44, 2, -1, 1, Q("29 mm")))
sketch11.addConstraint(Sketcher.Constraint("DistanceX", 48, 2, -1, 1, Q("32 mm")))
sketch11.addConstraint(Sketcher.Constraint("DistanceX", 52, 2, -1, 1, Q("35 mm")))
sketch11.addConstraint(Sketcher.Constraint("DistanceX", 56, 2, -1, 1, Q("38 mm")))
sketch11.addConstraint(Sketcher.Constraint("DistanceY", -1, 1, 0, 2, Q("17.5 mm")))
pocket5 = body.newObject("PartDesign::Pocket", "Pocket004")
pocket5.Profile = sketch11
pocket5.Length = 1

# Sketch on XY plane
sketch12 = body.newObject("Sketcher::SketchObject", "Sketch011")
sketch12.AttachmentSupport = (doc.getObject("XY_Plane"), [""])
sketch12.MapMode = "FlatFace"
sketch12.AttachmentOffset = App.Placement(Vector(0, 0, 5), App.Rotation())
sketch12.addGeometry(Part.LineSegment(Vector(8, 0, 0), Vector(8, -15, 0)), False)
sketch12.addGeometry(Part.LineSegment(Vector(8, -15, 0), Vector(16, -22, 0)), False)
sketch12.addGeometry(Part.LineSegment(Vector(16, -22, 0), Vector(16, -7, 0)), False)
sketch12.addGeometry(Part.LineSegment(Vector(16, -7, 0), Vector(8, 0, 0)), False)
sketch12.addConstraint(Sketcher.Constraint("Coincident", 0, 2, 1, 1))
sketch12.addConstraint(Sketcher.Constraint("Coincident", 1, 2, 2, 1))
sketch12.addConstraint(Sketcher.Constraint("Coincident", 2, 2, 3, 1))
sketch12.addConstraint(Sketcher.Constraint("Coincident", 3, 2, 0, 1))
sketch12.addConstraint(Sketcher.Constraint("Vertical", 0))
sketch12.addConstraint(Sketcher.Constraint("Vertical", 2))
sketch12.addConstraint(Sketcher.Constraint("Angle", 3, Q("140 deg")))
sketch12.addConstraint(Sketcher.Constraint("DistanceX", -1, 1, 0, 2, Q("8 mm")))
sketch12.addConstraint(Sketcher.Constraint("DistanceX", -1, 1, 1, 2, Q("16 mm")))
sketch12.addConstraint(Sketcher.Constraint("DistanceY", 1, 2, 0, 2, Q("6.4 mm")))
sketch12.addConstraint(Sketcher.Constraint("DistanceY", 0, 2, -1, 1, Q("15.155001 mm")))
sketch12.addConstraint(Sketcher.Constraint("DistanceY", 0, 2, 0, 1, Q("14.780938 mm")))
pocket6 = body.newObject("PartDesign::Pocket", "Pocket005")
pocket6.Profile = sketch12
pocket6.Type = "ThroughAll"

doc.recompute()
